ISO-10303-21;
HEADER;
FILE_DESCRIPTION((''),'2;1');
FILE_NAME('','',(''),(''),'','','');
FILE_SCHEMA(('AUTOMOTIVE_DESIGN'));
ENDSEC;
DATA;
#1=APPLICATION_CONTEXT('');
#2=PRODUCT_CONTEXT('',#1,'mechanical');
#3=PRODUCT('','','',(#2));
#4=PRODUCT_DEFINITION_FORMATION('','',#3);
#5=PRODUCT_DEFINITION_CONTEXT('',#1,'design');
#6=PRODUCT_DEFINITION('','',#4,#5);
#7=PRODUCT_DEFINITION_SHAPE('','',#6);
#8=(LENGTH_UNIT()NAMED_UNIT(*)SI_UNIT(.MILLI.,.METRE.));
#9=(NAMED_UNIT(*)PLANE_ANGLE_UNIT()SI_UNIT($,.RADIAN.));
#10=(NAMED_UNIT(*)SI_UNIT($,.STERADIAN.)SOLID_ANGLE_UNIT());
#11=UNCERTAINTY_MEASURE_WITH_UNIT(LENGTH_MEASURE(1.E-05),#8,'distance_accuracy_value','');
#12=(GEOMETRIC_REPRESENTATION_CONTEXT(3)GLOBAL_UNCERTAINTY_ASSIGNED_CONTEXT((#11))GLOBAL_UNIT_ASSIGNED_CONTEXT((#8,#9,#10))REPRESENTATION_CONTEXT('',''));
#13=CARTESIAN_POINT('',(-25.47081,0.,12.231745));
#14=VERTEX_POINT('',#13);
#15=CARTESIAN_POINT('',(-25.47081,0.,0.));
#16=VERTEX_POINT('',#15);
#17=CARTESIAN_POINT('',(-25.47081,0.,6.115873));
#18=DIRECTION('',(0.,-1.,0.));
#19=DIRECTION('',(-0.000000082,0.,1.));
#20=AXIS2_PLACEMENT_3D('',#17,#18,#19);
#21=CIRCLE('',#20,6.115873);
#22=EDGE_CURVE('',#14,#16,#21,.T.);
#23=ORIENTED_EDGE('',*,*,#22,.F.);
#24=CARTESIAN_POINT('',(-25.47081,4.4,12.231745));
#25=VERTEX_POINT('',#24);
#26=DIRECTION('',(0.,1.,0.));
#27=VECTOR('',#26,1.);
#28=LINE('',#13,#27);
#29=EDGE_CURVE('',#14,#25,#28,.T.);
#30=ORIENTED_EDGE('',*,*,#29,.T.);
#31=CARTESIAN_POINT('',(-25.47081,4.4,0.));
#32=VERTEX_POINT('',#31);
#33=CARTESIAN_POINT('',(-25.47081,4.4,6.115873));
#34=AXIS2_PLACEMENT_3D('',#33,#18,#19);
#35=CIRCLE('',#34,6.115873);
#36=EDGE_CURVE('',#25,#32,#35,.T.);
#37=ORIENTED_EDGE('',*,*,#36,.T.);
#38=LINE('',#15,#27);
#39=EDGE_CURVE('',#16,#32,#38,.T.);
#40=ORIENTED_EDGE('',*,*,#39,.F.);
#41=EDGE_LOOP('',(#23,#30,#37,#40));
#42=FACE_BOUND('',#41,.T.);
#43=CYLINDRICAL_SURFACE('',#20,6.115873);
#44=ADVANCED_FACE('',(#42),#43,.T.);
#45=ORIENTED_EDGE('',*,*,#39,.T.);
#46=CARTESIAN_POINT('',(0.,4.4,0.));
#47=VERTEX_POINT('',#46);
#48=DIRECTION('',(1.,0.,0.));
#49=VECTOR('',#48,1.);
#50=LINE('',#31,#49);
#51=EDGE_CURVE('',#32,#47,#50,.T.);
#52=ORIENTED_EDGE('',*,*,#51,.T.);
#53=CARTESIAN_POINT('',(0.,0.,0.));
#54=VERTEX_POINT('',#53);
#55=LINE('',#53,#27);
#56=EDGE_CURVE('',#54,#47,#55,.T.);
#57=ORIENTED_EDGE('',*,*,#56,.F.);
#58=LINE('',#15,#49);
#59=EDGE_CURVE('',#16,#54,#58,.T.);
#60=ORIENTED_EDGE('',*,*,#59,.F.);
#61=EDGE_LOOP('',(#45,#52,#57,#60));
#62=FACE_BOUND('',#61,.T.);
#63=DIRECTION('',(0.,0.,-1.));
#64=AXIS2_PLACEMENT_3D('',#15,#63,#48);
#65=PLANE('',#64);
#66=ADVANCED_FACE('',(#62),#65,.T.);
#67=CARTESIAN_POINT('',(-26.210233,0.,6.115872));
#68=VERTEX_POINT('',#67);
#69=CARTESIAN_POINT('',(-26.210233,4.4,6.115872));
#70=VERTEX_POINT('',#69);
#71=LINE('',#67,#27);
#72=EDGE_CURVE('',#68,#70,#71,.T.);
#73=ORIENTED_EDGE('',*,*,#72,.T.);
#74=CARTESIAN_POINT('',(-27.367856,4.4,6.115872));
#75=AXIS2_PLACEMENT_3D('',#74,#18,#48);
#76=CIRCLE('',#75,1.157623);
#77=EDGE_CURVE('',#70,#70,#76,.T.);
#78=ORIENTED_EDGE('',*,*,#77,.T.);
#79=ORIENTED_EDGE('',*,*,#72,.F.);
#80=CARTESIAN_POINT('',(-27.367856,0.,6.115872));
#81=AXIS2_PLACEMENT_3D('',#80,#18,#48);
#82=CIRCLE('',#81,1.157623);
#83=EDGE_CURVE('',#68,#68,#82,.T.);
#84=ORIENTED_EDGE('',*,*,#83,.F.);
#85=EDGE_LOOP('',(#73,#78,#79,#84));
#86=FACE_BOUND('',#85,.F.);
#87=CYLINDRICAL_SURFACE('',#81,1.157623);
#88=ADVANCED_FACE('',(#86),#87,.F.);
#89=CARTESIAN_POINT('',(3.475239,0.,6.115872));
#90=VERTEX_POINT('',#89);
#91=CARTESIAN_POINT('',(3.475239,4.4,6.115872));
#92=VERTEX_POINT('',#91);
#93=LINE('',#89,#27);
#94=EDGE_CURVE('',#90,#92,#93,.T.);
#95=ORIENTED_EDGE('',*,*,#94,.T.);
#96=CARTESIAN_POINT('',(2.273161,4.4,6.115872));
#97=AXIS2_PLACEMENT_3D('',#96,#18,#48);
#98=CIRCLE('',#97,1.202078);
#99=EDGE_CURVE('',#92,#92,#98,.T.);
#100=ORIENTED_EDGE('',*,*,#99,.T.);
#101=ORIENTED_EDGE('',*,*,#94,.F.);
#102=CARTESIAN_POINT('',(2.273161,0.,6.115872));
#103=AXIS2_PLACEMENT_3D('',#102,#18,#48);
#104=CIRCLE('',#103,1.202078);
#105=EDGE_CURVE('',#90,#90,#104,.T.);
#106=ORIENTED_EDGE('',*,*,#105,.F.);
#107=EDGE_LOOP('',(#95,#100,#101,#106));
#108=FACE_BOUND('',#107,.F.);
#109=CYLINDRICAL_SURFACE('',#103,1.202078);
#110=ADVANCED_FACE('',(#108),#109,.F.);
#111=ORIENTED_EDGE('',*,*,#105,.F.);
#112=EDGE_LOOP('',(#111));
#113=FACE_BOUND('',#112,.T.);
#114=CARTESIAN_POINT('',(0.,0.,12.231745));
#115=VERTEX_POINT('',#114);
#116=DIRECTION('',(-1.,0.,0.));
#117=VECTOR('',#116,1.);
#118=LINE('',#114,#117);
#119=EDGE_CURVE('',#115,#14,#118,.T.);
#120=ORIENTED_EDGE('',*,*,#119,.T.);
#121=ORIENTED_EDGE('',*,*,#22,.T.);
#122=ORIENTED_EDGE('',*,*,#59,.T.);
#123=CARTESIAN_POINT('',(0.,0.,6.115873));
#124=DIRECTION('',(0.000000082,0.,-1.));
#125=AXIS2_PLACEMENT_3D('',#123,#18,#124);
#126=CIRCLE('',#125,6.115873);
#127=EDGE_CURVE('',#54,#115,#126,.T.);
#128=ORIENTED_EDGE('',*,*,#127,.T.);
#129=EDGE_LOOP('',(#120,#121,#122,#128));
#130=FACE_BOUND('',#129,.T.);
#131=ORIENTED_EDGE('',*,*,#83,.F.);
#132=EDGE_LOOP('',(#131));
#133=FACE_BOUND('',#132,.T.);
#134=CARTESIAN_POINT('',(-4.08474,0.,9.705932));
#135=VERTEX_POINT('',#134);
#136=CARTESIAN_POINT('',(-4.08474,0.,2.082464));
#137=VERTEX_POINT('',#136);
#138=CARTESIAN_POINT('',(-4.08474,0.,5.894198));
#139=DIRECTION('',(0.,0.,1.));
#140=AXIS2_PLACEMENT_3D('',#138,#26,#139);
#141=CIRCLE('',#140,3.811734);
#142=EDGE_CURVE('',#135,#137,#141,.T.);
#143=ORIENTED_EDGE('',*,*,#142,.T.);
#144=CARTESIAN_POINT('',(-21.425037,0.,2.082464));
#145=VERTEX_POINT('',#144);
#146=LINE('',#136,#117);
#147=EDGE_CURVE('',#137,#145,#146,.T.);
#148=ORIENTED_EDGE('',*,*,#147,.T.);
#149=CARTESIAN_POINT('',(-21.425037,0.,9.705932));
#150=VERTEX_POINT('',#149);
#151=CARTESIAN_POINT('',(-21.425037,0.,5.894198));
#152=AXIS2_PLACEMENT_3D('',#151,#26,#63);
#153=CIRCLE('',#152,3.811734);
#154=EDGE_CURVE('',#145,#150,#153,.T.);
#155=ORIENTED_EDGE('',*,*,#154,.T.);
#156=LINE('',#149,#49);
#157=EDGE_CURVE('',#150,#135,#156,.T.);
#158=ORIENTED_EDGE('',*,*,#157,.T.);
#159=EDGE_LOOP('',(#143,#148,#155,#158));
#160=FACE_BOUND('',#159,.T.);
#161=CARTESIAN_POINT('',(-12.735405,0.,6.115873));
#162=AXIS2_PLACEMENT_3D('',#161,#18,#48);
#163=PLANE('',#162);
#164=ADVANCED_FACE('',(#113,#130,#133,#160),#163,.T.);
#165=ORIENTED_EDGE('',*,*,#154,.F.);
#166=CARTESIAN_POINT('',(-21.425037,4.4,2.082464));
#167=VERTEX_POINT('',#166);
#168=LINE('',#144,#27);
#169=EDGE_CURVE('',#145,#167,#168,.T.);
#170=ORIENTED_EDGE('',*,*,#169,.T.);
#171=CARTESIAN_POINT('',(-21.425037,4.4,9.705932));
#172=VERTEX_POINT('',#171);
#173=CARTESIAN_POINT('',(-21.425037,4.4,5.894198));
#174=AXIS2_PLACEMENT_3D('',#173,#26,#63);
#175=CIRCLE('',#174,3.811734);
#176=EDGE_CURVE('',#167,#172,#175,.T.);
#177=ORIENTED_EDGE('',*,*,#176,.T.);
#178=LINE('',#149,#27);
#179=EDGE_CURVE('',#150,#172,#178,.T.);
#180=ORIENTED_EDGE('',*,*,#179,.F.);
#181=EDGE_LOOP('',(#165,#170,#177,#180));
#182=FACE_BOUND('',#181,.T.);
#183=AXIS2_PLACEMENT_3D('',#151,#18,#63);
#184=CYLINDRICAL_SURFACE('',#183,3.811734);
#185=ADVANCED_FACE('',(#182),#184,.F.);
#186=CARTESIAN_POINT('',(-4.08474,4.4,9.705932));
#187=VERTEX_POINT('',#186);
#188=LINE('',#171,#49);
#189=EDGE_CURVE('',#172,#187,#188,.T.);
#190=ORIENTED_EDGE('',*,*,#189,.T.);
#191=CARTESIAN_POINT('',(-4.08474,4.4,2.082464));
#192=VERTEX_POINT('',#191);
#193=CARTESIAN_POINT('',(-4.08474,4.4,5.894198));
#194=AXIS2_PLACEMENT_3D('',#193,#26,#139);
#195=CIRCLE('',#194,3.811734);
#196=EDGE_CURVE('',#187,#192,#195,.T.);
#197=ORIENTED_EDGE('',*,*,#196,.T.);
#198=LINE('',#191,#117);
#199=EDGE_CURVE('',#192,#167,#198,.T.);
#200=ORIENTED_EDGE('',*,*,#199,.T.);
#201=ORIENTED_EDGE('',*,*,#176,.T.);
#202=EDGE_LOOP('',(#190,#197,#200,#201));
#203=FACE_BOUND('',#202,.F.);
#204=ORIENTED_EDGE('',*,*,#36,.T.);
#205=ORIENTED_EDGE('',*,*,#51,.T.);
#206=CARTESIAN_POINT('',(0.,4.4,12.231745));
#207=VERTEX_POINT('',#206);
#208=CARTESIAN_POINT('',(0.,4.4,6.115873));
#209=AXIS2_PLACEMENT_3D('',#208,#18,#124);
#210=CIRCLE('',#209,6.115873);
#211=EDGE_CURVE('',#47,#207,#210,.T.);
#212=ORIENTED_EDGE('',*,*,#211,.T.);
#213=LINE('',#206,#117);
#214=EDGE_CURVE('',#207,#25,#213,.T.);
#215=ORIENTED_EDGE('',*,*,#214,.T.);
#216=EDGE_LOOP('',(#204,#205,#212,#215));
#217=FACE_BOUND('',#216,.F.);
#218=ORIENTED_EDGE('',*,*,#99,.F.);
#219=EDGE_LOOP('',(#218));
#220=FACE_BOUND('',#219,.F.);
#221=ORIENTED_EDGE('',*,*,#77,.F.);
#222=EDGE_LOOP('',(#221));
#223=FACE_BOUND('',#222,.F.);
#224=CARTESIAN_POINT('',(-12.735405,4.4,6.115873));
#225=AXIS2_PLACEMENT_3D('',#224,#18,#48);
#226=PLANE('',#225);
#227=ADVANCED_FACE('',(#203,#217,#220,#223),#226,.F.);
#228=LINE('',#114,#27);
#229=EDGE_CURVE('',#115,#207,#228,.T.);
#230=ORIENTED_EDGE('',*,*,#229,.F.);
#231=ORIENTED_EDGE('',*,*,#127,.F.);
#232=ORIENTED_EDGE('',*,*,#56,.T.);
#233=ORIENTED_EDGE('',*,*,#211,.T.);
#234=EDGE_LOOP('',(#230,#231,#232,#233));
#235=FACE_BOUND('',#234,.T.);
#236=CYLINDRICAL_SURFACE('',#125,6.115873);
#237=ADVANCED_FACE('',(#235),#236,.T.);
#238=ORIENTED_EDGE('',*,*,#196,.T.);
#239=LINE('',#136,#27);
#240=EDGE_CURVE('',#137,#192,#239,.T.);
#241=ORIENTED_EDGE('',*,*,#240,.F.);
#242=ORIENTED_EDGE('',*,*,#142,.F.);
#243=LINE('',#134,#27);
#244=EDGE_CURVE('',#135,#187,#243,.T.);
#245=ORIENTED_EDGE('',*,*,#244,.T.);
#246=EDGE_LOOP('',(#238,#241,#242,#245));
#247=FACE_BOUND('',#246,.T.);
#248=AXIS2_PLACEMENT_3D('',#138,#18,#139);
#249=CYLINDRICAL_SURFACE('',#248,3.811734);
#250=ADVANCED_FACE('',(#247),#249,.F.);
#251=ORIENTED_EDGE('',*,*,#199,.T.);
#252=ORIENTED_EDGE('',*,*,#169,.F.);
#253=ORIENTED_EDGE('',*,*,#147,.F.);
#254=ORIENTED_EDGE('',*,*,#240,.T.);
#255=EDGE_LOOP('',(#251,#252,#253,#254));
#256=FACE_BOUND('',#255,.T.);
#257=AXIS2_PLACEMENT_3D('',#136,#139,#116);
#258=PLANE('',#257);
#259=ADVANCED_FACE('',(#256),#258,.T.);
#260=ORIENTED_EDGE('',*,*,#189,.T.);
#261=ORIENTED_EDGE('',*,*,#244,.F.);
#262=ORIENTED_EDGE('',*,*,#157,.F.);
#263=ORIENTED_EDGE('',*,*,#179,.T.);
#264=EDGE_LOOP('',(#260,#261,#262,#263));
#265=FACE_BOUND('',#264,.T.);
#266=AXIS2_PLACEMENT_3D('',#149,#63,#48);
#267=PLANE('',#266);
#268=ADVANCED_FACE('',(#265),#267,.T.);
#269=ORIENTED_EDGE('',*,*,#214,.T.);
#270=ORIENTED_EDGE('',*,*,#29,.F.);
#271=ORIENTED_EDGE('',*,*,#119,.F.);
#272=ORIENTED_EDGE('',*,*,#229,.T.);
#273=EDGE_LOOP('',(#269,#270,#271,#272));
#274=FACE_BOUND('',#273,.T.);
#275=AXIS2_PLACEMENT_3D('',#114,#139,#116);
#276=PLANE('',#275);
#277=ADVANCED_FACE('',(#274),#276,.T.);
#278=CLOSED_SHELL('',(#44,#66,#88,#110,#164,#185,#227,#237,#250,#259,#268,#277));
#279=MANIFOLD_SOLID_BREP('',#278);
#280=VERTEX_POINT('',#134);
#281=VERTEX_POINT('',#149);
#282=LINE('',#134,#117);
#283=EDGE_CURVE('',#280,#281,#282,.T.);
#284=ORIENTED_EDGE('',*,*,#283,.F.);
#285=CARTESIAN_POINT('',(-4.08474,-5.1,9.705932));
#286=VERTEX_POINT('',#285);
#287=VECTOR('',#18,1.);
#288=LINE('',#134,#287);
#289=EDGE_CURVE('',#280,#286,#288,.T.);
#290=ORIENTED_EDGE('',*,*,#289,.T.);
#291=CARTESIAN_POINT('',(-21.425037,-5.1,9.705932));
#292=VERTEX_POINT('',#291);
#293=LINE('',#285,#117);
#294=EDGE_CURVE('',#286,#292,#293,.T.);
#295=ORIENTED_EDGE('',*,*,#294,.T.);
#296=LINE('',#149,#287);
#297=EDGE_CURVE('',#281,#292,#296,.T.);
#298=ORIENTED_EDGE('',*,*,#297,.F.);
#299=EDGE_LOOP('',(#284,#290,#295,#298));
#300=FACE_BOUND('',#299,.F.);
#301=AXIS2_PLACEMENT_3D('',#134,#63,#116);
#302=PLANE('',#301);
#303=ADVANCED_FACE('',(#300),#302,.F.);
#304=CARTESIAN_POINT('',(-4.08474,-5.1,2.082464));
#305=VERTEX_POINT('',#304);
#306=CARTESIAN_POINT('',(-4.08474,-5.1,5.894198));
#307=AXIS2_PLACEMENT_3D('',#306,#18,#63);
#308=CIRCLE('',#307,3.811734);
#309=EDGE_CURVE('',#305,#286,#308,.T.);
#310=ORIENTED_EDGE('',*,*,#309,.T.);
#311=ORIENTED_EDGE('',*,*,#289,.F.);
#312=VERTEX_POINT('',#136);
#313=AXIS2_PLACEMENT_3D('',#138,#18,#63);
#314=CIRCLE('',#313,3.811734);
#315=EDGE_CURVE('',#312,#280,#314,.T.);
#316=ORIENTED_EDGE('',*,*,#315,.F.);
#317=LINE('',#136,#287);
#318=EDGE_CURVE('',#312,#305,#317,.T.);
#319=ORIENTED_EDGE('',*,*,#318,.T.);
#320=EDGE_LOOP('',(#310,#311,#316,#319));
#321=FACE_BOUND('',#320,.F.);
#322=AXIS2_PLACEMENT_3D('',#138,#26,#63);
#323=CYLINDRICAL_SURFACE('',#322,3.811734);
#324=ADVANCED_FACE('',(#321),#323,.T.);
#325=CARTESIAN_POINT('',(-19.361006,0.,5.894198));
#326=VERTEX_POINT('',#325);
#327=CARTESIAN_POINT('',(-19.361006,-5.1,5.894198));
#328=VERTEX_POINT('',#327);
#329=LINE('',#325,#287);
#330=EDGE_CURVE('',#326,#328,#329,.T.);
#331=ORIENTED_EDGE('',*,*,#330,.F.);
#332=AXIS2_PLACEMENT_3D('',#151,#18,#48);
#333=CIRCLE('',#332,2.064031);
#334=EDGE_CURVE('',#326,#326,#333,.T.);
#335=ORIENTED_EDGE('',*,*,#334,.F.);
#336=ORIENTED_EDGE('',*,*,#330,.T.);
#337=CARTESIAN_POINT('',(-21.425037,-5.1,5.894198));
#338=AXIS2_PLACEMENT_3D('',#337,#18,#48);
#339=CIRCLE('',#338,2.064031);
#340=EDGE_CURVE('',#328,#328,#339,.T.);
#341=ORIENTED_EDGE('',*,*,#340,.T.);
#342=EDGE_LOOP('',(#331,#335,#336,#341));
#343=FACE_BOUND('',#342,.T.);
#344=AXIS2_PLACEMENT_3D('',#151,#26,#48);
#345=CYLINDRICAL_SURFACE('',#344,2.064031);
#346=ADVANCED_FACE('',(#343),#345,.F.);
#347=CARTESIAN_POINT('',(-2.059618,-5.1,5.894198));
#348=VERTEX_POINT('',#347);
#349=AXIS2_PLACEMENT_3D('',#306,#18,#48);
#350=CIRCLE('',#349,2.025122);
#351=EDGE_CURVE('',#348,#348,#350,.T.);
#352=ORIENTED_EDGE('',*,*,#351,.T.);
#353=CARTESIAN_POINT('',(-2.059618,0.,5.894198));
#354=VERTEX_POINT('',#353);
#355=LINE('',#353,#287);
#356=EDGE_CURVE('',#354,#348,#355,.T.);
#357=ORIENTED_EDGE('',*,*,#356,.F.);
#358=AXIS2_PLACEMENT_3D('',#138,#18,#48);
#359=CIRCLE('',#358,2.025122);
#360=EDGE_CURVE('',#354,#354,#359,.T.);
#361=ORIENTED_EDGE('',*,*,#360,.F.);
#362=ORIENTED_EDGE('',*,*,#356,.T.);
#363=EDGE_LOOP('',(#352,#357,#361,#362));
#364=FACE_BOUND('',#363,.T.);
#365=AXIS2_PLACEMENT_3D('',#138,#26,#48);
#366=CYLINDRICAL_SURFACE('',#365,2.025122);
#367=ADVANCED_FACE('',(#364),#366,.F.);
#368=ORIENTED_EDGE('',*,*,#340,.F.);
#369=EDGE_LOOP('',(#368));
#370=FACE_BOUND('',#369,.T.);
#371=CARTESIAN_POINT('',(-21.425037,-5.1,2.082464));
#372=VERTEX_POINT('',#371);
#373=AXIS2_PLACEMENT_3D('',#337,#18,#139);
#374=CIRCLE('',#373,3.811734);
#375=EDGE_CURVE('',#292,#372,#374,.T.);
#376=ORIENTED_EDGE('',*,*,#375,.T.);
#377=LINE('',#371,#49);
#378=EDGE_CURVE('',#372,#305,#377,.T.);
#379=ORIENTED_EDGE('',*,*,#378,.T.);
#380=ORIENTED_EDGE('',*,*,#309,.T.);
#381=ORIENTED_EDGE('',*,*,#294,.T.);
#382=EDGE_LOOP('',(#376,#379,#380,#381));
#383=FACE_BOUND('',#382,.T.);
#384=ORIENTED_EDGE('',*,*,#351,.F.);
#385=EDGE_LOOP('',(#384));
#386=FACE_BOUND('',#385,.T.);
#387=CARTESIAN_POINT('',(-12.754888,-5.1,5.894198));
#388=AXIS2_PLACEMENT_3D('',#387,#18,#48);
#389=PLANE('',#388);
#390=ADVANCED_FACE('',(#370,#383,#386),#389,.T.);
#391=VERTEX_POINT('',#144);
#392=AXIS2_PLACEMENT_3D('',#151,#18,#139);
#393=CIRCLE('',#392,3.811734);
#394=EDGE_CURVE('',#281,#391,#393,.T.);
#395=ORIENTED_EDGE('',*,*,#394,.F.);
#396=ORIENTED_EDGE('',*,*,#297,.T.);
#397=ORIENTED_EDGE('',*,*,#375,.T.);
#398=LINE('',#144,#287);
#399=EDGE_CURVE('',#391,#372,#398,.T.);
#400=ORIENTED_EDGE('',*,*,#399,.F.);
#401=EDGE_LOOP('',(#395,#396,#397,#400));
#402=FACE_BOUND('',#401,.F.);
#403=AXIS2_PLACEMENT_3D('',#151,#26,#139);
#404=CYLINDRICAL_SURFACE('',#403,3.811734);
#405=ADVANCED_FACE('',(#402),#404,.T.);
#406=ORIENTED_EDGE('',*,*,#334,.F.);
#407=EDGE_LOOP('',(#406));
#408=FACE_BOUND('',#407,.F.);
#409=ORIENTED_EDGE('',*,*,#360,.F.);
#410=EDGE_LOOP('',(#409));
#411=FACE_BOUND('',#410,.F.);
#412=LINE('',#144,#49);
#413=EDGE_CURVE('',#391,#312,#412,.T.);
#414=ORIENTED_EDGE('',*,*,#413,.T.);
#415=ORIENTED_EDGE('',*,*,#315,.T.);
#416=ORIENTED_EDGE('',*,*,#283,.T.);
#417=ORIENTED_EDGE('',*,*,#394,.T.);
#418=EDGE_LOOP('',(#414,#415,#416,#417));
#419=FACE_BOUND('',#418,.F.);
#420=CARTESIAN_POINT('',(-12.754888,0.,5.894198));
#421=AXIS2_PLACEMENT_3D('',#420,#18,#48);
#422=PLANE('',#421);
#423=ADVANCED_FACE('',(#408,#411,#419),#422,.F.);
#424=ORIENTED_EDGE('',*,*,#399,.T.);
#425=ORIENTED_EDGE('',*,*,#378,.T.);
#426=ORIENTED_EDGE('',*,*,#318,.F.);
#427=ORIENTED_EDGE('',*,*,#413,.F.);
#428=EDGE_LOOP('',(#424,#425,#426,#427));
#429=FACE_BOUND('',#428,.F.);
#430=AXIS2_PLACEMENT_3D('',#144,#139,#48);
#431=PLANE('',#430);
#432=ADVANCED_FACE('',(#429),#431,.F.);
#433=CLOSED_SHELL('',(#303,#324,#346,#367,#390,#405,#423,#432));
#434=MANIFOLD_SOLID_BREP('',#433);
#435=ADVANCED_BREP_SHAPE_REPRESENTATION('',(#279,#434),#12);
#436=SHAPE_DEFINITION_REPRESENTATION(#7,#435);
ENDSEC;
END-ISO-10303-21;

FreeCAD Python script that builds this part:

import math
import FreeCAD as App
import Part
import Sketcher

doc = App.newDocument("Part")
body = doc.addObject("PartDesign::Body", "Body")

sketch1 = body.newObject("Sketcher::SketchObject", "Sketch")
sketch1.AttachmentSupport = (doc.getObject("XZ_Plane"), [""])
sketch1.MapMode = "FlatFace"
sketch1.addGeometry([
    Part.LineSegment(App.Vector(-25.5, 0, 0), App.Vector(0, 0, 0)),
    Part.ArcOfCircle(Part.Circle(App.Vector(0, 6.1, 0), App.Vector(0, 0, 1), 6.1), math.radians(-90), math.radians(90)),
    Part.LineSegment(App.Vector(0, 12.2, 0), App.Vector(-25.5, 12.2, 0)),
    Part.ArcOfCircle(Part.Circle(App.Vector(-25.5, 6.1, 0), App.Vector(0, 0, 1), 6.1), math.radians(90), math.radians(270)),
    Part.Circle(App.Vector(-27.4, 6.1, 0), App.Vector(0, 0, 1), 1.2),
    Part.ArcOfCircle(Part.Circle(App.Vector(-4.1, 5.9, 0), App.Vector(0, 0, 1), 3.8), math.radians(-90), math.radians(90)),
    Part.LineSegment(App.Vector(-4.1, 2.1, 0), App.Vector(-21.4, 2.1, 0)),
    Part.ArcOfCircle(Part.Circle(App.Vector(-21.4, 5.9, 0), App.Vector(0, 0, 1), 3.8), math.radians(90), math.radians(270)),
    Part.LineSegment(App.Vector(-21.4, 9.7, 0), App.Vector(-4.1, 9.7, 0)),
    Part.Circle(App.Vector(2.3, 6.1, 0), App.Vector(0, 0, 1), 1.2),
], False)
sketch1.addConstraint([
    Sketcher.Constraint("Tangent", 0, 2, 1, 1),
    Sketcher.Constraint("Tangent", 1, 2, 2, 1),
    Sketcher.Constraint("Tangent", 2, 2, 3, 1),
    Sketcher.Constraint("Tangent", 3, 2, 0, 1),
    Sketcher.Constraint("Tangent", 5, 1, 6, 1),
    Sketcher.Constraint("Tangent", 6, 2, 7, 2),
    Sketcher.Constraint("Tangent", 7, 1, 8, 1),
    Sketcher.Constraint("Tangent", 8, 2, 5, 2),
    Sketcher.Constraint("Horizontal", 0),
    Sketcher.Constraint("Horizontal", 2),
    Sketcher.Constraint("Horizontal", 6),
    Sketcher.Constraint("Horizontal", 8),
    Sketcher.Constraint("Coincident", 0, 2, -1, 1),
    Sketcher.Constraint("Horizontal", 3, 3, 4, 3),
    Sketcher.Constraint("Horizontal", 4, 3, 9, 3),
    Sketcher.Constraint("Diameter", 4, 2.315246),
    Sketcher.Constraint("Diameter", 9, 2.404156),
    Sketcher.Constraint("Radius", 1, 6.115873),
    Sketcher.Constraint("Radius", 5, 3.811734),
    Sketcher.Constraint("DistanceX", 0, 1, 0, 2, 25.47081),
    Sketcher.Constraint("DistanceY", -1, 1, 5, 3, 5.894198),
    Sketcher.Constraint("DistanceX", 5, 3, 9, 3, 6.357901),
    Sketcher.Constraint("DistanceX", 6, 2, 6, 1, 17.340297),
    Sketcher.Constraint("DistanceX", 5, 3, -1, 1, 4.08474),
    Sketcher.Constraint("DistanceX", 4, 3, 7, 3, 5.942819),
])
pad1 = body.newObject("PartDesign::Pad", "Pad")
pad1.Profile = sketch1
pad1.Length = 4.4
pad1.Reversed = True
body2 = doc.addObject("PartDesign::Body", "Body001")

sketch2 = body2.newObject("Sketcher::SketchObject", "Sketch001")
sketch2.AttachmentSupport = (doc.getObject("XZ_Plane001"), [""])
sketch2.MapMode = "FlatFace"
sketch2.addGeometry([
    Part.ArcOfCircle(Part.Circle(App.Vector(-21.4, 5.9, 0), App.Vector(0, 0, 1), 3.8), math.radians(90), math.radians(270)),
    Part.LineSegment(App.Vector(-21.4, 2.1, 0), App.Vector(-4.1, 2.1, 0)),
    Part.ArcOfCircle(Part.Circle(App.Vector(-4.1, 5.9, 0), App.Vector(0, 0, 1), 3.8), math.radians(-90), math.radians(90)),
    Part.LineSegment(App.Vector(-4.1, 9.7, 0), App.Vector(-21.4, 9.7, 0)),
    Part.Circle(App.Vector(-21.4, 5.9, 0), App.Vector(0, 0, 1), 2.1),
    Part.Circle(App.Vector(-4.1, 5.9, 0), App.Vector(0, 0, 1), 2),
], False)
sketch2.addConstraint([
    Sketcher.Constraint("Tangent", 0, 2, 1, 1),
    Sketcher.Constraint("Tangent", 1, 2, 2, 1),
    Sketcher.Constraint("Tangent", 2, 2, 3, 1),
    Sketcher.Constraint("Tangent", 3, 2, 0, 1),
    Sketcher.Constraint("Horizontal", 1),
    Sketcher.Constraint("Horizontal", 3),
    Sketcher.Constraint("Coincident", 4, 3, 0, 3),
    Sketcher.Constraint("Coincident", 5, 3, 2, 3),
    Sketcher.Constraint("Diameter", 4, 4.128062),
    Sketcher.Constraint("Diameter", 5, 4.050244),
    Sketcher.Constraint("Radius", 0, 3.811734),
    Sketcher.Constraint("DistanceY", -1, 1, 0, 3, 5.894198),
    Sketcher.Constraint("DistanceX", 1, 1, 1, 2, 17.340297),
    Sketcher.Constraint("DistanceX", 2, 3, -1, 1, 4.08474),
])
pad2 = body2.newObject("PartDesign::Pad", "Pad001")
pad2.Profile = sketch2
pad2.Length = 5.1

doc.recompute()
